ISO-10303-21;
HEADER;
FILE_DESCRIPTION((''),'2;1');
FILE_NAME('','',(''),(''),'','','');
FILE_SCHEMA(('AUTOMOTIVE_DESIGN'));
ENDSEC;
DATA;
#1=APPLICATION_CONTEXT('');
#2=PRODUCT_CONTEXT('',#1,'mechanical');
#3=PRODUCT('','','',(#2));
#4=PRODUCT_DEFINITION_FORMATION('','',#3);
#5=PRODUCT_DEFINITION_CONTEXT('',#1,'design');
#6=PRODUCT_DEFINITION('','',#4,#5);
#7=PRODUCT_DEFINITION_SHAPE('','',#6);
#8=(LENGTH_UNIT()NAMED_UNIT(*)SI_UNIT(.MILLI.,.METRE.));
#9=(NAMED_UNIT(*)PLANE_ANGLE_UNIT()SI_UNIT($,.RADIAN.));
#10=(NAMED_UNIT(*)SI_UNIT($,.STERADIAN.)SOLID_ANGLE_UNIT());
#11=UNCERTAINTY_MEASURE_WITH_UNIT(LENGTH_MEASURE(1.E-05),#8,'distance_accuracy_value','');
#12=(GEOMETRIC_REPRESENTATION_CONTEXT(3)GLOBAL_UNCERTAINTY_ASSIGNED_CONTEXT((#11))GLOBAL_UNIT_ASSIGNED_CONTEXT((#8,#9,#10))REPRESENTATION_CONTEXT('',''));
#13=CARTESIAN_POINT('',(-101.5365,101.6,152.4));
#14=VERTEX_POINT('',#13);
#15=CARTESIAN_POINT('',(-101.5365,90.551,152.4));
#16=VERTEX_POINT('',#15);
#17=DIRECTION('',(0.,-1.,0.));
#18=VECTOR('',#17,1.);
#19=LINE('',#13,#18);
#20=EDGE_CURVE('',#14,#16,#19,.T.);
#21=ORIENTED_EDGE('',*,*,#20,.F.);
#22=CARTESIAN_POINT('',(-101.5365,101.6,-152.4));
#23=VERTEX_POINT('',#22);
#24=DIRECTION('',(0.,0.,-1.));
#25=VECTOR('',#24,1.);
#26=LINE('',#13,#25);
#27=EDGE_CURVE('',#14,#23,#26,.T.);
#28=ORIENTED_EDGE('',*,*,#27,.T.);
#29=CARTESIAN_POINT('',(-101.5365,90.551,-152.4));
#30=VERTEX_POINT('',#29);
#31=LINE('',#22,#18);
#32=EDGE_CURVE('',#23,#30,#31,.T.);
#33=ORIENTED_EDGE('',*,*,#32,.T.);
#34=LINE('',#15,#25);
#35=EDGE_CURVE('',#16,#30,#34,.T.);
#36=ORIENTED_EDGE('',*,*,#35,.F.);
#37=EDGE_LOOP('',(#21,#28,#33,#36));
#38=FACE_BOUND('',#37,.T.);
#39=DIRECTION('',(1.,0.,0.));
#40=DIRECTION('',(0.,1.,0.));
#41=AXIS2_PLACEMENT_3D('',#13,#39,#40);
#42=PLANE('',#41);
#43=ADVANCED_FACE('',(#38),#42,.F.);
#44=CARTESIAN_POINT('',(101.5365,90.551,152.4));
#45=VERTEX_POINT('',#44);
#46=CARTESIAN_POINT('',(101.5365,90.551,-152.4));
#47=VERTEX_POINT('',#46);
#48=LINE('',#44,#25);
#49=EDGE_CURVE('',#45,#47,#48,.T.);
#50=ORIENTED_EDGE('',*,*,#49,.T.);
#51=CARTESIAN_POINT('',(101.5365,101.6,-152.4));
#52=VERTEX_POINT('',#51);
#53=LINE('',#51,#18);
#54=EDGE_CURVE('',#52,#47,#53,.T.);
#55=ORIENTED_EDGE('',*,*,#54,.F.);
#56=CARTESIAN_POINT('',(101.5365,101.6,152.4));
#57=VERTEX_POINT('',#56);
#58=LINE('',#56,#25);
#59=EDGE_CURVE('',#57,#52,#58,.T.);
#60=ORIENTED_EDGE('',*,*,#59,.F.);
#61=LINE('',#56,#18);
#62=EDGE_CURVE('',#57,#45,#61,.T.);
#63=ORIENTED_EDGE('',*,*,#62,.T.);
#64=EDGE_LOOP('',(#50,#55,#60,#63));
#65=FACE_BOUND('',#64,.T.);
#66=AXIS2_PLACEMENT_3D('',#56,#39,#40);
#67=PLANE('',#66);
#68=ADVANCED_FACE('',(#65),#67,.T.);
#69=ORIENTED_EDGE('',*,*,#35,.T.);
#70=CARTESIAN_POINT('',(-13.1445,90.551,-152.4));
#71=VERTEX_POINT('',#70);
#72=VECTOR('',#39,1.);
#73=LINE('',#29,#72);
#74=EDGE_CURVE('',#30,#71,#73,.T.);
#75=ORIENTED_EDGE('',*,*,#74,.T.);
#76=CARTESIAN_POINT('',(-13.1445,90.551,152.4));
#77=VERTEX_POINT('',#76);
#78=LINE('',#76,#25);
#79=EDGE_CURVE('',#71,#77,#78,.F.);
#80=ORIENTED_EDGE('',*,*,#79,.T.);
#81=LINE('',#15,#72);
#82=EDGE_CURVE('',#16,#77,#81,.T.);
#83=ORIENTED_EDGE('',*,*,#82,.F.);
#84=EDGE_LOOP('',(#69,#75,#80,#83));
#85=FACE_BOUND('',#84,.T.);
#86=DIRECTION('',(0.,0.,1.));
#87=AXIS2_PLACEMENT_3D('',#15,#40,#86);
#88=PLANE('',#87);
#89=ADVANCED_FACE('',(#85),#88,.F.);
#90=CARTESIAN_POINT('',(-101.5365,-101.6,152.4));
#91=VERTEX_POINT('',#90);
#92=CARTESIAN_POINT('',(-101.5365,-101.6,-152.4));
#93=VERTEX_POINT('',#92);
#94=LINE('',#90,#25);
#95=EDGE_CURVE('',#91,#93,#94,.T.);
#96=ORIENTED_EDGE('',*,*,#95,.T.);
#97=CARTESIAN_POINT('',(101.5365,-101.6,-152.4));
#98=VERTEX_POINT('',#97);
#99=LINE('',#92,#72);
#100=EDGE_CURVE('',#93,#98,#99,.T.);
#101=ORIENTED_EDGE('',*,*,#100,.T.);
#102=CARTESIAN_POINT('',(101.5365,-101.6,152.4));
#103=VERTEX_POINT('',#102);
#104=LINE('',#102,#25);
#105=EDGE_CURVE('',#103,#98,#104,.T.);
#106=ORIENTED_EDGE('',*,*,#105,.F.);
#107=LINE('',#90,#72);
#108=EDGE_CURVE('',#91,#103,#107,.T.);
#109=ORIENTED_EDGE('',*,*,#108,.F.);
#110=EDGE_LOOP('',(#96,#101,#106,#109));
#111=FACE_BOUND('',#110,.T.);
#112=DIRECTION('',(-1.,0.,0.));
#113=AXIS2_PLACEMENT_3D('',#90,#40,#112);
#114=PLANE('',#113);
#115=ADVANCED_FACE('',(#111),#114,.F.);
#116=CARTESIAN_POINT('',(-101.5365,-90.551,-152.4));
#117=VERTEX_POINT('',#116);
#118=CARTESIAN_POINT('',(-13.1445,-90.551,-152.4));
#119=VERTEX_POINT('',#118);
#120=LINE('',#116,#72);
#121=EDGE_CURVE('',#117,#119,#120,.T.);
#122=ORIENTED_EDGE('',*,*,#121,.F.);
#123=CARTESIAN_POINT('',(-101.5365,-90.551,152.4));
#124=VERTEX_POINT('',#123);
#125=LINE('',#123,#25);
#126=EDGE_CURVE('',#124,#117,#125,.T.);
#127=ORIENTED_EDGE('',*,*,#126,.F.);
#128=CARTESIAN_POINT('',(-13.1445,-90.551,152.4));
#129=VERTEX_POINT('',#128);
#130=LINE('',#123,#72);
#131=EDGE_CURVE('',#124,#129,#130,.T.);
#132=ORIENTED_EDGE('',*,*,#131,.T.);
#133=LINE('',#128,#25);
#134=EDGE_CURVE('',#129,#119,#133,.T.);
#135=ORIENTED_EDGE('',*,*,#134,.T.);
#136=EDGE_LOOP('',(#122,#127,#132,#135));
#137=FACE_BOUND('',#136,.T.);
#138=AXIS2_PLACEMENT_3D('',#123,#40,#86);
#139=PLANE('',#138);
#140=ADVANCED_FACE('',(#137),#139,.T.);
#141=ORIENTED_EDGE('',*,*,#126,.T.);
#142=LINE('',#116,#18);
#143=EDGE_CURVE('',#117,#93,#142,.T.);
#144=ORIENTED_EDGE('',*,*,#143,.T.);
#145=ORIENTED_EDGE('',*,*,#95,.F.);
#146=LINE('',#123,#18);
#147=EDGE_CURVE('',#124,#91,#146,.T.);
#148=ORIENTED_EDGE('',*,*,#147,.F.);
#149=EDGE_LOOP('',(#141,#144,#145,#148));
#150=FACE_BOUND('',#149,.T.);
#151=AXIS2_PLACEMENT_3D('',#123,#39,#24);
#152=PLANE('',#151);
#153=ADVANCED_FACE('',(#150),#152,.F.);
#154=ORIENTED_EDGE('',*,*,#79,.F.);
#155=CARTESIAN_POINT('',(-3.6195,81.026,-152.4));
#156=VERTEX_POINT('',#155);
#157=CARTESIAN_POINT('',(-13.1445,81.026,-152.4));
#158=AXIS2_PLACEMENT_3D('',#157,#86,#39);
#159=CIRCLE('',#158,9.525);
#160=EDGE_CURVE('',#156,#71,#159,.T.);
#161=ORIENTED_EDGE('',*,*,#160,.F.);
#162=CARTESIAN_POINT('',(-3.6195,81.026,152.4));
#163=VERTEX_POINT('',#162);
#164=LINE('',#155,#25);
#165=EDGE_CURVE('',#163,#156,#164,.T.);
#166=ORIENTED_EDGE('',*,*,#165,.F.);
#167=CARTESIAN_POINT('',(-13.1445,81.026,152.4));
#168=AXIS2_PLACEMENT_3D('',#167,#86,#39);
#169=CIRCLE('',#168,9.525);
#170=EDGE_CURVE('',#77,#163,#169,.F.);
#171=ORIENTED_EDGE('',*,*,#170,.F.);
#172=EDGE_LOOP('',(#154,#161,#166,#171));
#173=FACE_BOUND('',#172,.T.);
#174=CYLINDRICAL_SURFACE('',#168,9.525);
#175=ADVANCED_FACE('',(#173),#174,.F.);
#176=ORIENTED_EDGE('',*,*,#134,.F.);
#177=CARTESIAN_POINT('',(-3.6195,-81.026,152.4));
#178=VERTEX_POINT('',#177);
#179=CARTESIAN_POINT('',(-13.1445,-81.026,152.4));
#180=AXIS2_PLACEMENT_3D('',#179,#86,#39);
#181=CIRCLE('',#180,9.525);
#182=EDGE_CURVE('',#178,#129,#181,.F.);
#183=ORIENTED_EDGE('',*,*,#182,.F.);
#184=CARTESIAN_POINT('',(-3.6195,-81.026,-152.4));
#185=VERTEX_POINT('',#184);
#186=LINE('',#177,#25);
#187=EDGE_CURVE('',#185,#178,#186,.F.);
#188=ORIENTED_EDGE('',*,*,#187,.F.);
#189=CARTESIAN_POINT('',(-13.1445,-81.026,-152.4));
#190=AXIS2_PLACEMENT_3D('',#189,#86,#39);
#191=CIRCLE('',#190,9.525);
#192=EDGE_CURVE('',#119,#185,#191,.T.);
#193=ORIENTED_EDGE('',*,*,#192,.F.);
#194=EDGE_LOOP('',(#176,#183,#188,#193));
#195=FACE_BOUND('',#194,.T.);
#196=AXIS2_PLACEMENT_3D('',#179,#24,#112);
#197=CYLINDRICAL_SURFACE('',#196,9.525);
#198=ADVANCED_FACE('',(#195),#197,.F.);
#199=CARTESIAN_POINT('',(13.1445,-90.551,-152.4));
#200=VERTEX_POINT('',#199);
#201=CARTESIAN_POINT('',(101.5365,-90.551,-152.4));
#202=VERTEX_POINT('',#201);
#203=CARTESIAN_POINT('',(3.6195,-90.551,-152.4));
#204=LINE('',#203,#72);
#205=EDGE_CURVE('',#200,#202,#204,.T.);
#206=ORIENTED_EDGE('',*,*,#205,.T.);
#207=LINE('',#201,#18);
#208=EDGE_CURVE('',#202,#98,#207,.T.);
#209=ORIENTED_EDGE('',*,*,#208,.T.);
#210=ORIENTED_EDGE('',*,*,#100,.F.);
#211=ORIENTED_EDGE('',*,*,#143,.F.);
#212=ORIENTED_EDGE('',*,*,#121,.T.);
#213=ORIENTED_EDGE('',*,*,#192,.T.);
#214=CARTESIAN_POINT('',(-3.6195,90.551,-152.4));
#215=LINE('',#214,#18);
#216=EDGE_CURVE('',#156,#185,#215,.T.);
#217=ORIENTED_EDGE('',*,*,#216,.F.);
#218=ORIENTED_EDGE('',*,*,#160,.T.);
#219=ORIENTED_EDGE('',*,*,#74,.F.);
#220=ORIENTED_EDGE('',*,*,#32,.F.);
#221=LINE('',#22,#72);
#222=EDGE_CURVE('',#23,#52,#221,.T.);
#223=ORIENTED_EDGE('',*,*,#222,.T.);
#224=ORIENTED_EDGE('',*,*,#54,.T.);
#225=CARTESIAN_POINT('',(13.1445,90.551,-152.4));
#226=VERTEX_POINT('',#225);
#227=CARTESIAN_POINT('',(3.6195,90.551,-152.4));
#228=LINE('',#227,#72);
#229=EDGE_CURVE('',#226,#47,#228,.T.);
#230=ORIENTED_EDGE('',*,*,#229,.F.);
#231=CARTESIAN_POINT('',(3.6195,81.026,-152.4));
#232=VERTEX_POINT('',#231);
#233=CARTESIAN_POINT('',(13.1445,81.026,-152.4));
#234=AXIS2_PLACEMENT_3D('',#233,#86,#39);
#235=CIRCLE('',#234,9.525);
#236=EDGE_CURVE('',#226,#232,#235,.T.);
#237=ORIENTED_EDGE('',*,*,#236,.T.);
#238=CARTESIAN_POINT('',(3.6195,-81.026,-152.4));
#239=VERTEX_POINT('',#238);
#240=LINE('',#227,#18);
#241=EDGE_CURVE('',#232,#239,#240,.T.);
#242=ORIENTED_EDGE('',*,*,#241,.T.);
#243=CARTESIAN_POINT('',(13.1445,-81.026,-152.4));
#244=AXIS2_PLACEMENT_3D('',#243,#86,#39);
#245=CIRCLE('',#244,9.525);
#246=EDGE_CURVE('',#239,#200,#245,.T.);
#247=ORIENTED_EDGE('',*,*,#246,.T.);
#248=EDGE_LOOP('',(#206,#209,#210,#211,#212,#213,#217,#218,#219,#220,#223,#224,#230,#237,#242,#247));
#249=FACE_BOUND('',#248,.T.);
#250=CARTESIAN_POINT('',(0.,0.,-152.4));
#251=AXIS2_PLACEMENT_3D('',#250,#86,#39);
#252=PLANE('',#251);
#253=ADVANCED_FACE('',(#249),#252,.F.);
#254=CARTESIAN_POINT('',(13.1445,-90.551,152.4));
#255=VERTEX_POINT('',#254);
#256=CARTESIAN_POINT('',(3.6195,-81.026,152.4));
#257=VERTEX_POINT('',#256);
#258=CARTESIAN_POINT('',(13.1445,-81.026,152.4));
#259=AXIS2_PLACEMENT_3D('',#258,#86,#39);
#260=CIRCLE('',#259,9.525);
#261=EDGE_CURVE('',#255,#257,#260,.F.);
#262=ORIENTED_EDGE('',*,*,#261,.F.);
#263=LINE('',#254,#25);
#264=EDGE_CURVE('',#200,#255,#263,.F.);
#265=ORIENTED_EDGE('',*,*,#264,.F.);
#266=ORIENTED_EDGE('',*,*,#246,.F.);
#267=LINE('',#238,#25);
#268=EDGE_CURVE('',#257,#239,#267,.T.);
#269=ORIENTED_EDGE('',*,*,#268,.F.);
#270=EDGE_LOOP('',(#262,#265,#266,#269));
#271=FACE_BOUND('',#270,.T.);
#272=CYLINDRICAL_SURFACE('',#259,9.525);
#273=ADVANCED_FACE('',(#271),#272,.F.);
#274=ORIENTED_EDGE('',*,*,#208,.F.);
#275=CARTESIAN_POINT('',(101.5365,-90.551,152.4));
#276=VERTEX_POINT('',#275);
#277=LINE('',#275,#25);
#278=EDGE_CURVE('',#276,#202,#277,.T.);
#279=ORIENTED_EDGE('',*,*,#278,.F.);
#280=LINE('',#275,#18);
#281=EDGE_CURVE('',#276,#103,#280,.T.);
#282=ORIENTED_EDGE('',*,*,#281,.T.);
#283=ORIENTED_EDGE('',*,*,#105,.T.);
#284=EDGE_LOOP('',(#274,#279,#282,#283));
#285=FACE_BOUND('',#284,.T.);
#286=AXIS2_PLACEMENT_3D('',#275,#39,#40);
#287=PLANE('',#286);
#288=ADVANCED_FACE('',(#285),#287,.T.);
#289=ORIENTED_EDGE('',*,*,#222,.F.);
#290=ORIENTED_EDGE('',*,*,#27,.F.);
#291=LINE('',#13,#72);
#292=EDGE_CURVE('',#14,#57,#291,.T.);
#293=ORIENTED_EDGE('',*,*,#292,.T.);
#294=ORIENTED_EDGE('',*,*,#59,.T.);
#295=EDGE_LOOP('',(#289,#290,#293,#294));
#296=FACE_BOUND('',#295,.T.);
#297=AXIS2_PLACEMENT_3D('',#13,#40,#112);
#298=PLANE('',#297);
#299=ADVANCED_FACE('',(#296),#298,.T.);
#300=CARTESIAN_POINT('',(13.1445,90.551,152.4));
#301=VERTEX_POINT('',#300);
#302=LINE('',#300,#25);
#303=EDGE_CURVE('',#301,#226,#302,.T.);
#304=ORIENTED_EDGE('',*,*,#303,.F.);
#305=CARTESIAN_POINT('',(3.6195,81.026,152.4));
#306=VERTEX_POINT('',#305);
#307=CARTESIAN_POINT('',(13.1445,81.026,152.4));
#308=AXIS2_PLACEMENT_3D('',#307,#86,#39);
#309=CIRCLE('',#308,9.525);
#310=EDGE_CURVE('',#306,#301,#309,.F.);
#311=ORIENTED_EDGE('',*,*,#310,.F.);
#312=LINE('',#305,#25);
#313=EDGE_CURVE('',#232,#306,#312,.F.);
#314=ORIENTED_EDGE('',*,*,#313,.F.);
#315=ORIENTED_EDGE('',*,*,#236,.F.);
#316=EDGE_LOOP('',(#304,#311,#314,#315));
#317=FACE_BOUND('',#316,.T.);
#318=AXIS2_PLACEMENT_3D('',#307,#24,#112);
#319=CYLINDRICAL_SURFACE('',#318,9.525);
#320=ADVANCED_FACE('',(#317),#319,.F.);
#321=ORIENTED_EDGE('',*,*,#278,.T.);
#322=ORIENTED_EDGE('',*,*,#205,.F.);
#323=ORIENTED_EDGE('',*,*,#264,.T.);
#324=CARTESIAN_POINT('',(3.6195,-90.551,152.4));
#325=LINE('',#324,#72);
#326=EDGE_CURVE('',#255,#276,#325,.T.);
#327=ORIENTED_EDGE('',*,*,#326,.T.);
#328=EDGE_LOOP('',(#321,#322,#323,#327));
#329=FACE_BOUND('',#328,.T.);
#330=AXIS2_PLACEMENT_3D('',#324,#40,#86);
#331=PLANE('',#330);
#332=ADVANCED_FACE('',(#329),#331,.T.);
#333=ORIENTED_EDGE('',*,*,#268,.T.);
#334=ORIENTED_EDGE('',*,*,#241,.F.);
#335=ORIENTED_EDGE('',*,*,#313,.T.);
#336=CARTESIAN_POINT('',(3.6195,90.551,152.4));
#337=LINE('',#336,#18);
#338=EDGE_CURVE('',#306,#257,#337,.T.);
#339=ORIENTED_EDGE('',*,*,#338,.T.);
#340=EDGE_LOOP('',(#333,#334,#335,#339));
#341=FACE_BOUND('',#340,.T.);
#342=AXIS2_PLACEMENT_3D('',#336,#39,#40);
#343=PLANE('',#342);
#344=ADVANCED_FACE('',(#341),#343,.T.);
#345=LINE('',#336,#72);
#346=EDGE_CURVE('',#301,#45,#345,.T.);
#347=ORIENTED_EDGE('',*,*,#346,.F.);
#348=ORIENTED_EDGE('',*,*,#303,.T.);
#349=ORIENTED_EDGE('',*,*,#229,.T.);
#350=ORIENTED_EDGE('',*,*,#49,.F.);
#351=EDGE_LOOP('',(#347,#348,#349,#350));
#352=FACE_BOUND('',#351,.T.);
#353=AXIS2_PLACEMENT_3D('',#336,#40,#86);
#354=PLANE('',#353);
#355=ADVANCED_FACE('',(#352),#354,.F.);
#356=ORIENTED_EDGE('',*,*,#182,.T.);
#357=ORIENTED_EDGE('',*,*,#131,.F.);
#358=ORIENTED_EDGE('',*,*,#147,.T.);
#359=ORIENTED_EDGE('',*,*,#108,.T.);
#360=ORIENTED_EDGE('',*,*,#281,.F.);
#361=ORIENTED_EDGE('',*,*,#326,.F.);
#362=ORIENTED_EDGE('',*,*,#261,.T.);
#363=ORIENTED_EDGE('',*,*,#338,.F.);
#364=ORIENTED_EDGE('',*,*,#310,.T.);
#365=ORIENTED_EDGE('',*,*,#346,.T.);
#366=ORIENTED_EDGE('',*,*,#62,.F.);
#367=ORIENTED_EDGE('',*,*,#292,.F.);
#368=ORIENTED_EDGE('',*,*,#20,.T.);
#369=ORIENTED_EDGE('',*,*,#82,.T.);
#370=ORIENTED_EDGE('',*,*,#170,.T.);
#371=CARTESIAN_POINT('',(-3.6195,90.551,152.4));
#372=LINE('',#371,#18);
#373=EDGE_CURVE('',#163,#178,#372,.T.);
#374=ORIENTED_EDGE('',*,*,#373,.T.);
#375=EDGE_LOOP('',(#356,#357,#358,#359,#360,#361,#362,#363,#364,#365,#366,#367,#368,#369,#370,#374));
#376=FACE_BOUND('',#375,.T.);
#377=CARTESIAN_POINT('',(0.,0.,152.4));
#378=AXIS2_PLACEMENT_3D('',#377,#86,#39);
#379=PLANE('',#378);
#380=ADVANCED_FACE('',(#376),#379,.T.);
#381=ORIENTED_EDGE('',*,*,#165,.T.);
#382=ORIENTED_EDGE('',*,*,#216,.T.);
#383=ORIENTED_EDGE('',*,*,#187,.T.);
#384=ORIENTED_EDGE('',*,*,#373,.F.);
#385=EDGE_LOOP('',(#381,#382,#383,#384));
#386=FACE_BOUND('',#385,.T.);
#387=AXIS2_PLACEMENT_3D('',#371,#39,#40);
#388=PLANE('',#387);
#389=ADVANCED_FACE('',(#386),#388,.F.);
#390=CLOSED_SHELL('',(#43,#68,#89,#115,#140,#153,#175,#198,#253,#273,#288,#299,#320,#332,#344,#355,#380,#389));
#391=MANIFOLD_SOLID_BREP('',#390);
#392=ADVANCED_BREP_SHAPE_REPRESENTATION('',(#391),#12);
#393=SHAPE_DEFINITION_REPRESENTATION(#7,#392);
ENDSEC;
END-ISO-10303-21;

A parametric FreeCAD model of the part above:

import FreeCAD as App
import Part
import Sketcher
from FreeCAD import Vector
Q = App.Units.Quantity


def edges_at(feature, points):
    """Names of the edges that pass closest to the given points."""
    edges = feature.Shape.Edges
    near = lambda p: min(range(len(edges)), key=lambda i: edges[i].distToShape(Part.Vertex(*p))[0])
    return sorted({f"Edge{near(p) + 1}" for p in points})

doc = App.newDocument("Part")
body = doc.addObject("PartDesign::Body", "Body")

# Sketch on XY plane
sketch1 = body.newObject("Sketcher::SketchObject", "Sketch")
sketch1.AttachmentSupport = (doc.getObject("XY_Plane"), [""])
sketch1.MapMode = "FlatFace"
sketch1.addGeometry([
    Part.LineSegment(Vector(-4, 91, 0), Vector(-4, -91, 0)),  # 0
    Part.LineSegment(Vector(-4, -91, 0), Vector(-102, -91, 0)),  # 1
    Part.LineSegment(Vector(-102, -91, 0), Vector(-102, -102, 0)),  # 2
    Part.LineSegment(Vector(-102, -102, 0), Vector(102, -102, 0)),  # 3
    Part.LineSegment(Vector(102, -102, 0), Vector(102, -91, 0)),  # 4
    Part.LineSegment(Vector(102, -91, 0), Vector(4, -91, 0)),  # 5
    Part.LineSegment(Vector(4, -91, 0), Vector(4, 91, 0)),  # 6
    Part.LineSegment(Vector(4, 91, 0), Vector(102, 91, 0)),  # 7
    Part.LineSegment(Vector(102, 91, 0), Vector(102, 102, 0)),  # 8
    Part.LineSegment(Vector(102, 102, 0), Vector(-102, 102, 0)),  # 9
    Part.LineSegment(Vector(-102, 102, 0), Vector(-102, 91, 0)),  # 10
    Part.LineSegment(Vector(-102, 91, 0), Vector(-4, 91, 0)),  # 11
], False)
sketch1.addConstraint([
    Sketcher.Constraint("Coincident", 0, 2, 1, 1),
    Sketcher.Constraint("Coincident", 1, 2, 2, 1),
    Sketcher.Constraint("Coincident", 2, 2, 3, 1),
    Sketcher.Constraint("Coincident", 3, 2, 4, 1),
    Sketcher.Constraint("Coincident", 4, 2, 5, 1),
    Sketcher.Constraint("Coincident", 5, 2, 6, 1),
    Sketcher.Constraint("Coincident", 6, 2, 7, 1),
    Sketcher.Constraint("Coincident", 7, 2, 8, 1),
    Sketcher.Constraint("Coincident", 8, 2, 9, 1),
    Sketcher.Constraint("Coincident", 9, 2, 10, 1),
    Sketcher.Constraint("Coincident", 10, 2, 11, 1),
    Sketcher.Constraint("Coincident", 11, 2, 0, 1),
    Sketcher.Constraint("Vertical", 0),
    Sketcher.Constraint("Horizontal", 1),
    Sketcher.Constraint("Vertical", 2),
    Sketcher.Constraint("Horizontal", 3),
    Sketcher.Constraint("Vertical", 4),
    Sketcher.Constraint("Horizontal", 5),
    Sketcher.Constraint("Vertical", 6),
    Sketcher.Constraint("Horizontal", 7),
    Sketcher.Constraint("Vertical", 8),
    Sketcher.Constraint("Horizontal", 9),
    Sketcher.Constraint("Vertical", 10),
    Sketcher.Constraint("Horizontal", 11),
    Sketcher.Constraint("Symmetric", 0, 2, 6, 2, -1, 1),
    Sketcher.Constraint("Symmetric", 2, 2, 8, 2, -1, 1),
    Sketcher.Constraint("Symmetric", 4, 2, 10, 2, -1, 1),
    Sketcher.Constraint("Symmetric", 1, 2, 4, 2, -2),
    Sketcher.Constraint("DistanceY", 2, 2, -1, 1, Q("4 in")),
    Sketcher.Constraint("DistanceY", 0, 2, 0, 1, Q("7.13 in")),
    Sketcher.Constraint("DistanceX", 1, 2, 1, 1, Q("3.855 in")),
    Sketcher.Constraint("DistanceX", 3, 1, 3, 2, Q("7.995 in")),
])
pad1 = body.newObject("PartDesign::Pad", "Pad")
pad1.Profile = sketch1
pad1.Length = Q("12 in")
pad1.Midplane = True
doc.recompute()

fillet = body.newObject("PartDesign::Fillet", "Fillet")
fillet.Base = (pad1, edges_at(pad1, [
    (-3.619, -90.551, 0),
    (-3.619, 90.551, 0),
    (3.619, 90.551, 0),
    (3.619, -90.551, 0),
]))
fillet.Radius = Q("0.375 in")

doc.recompute()
